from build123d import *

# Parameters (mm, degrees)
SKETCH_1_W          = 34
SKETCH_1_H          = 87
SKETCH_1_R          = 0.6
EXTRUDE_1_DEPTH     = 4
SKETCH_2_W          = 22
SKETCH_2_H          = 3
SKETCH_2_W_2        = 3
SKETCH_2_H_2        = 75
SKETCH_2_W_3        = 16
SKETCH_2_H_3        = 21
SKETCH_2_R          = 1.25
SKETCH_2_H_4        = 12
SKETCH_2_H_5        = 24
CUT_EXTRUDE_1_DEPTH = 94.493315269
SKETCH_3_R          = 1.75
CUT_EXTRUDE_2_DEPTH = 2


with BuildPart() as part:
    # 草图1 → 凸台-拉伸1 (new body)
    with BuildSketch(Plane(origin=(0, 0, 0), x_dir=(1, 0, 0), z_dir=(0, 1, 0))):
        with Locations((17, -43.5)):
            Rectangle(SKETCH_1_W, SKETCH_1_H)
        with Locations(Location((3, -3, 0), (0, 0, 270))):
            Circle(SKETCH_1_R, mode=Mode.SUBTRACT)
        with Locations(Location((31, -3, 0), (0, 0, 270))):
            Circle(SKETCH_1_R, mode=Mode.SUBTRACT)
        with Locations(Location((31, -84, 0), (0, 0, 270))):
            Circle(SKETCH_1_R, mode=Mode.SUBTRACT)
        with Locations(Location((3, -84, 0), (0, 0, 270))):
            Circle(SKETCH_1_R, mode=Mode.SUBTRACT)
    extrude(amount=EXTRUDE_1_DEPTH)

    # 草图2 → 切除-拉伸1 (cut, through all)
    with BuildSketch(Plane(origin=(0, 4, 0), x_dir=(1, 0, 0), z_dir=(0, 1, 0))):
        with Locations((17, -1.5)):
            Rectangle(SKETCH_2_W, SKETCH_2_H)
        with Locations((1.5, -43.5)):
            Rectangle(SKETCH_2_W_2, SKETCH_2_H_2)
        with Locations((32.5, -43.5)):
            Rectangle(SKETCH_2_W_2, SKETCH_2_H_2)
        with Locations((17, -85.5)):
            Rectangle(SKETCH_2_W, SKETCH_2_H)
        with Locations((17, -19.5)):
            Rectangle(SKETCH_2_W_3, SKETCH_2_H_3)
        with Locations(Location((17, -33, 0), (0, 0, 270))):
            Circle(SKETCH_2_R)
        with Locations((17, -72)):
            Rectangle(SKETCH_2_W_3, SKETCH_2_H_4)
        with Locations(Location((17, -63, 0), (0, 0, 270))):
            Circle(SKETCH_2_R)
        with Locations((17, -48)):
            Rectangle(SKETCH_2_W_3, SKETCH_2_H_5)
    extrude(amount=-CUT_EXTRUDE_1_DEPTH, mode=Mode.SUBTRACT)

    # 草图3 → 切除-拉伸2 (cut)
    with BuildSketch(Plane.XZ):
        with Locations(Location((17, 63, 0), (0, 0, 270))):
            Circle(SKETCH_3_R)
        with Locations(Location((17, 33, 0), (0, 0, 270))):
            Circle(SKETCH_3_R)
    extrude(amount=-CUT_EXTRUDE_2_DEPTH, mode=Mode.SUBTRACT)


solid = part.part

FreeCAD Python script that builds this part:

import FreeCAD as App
import Part
import Sketcher


def add_polygon(sketch, points):
    """Adds a closed chain of lines whose ends are joined by coincident constraints."""
    first, n = sketch.GeometryCount, len(points)
    for a, b in zip(points, points[1:] + points[:1]):
        sketch.addGeometry(Part.LineSegment(App.Vector(*a, 0), App.Vector(*b, 0)), False)
    for i in range(n):
        sketch.addConstraint(Sketcher.Constraint("Coincident", first + i, 2, first + (i + 1) % n, 1))

doc = App.newDocument("Part")
body = doc.addObject("PartDesign::Body", "Body")

# Sketch on XZ plane
sketch1 = body.newObject("Sketcher::SketchObject", "Sketch")
sketch1.AttachmentSupport = (doc.getObject("XZ_Plane"), [""])
sketch1.MapMode = "FlatFace"
add_polygon(sketch1, [(0, 0), (0, 87), (34, 87), (34, 0)])  # lines 0-3
sketch1.addGeometry(Part.Circle(App.Vector(3, 84, 0), App.Vector(0, 0, 1), 0.6), False)  # 4
sketch1.addGeometry(Part.Circle(App.Vector(31, 84, 0), App.Vector(0, 0, 1), 0.6), False)  # 5
sketch1.addGeometry(Part.Circle(App.Vector(3, 3, 0), App.Vector(0, 0, 1), 0.6), False)  # 6
sketch1.addGeometry(Part.Circle(App.Vector(31, 3, 0), App.Vector(0, 0, 1), 0.6), False)  # 7
sketch1.addConstraint([
    Sketcher.Constraint("Vertical", 0),
    Sketcher.Constraint("Horizontal", 1),
    Sketcher.Constraint("Vertical", 2),
    Sketcher.Constraint("Horizontal", 3),
    Sketcher.Constraint("Coincident", 3, 2, -1, 1),
    Sketcher.Constraint("Equal", 4, 5),
    Sketcher.Constraint("Equal", 5, 6),
    Sketcher.Constraint("Equal", 6, 7),
    Sketcher.Constraint("Horizontal", 4, 3, 5, 3),
    Sketcher.Constraint("Horizontal", 6, 3, 7, 3),
    Sketcher.Constraint("Vertical", 4, 3, 6, 3),
    Sketcher.Constraint("Vertical", 5, 3, 7, 3),
    Sketcher.Constraint("Diameter", 4, 1.2),
    Sketcher.Constraint("DistanceX", 1, 1, 1, 2, 34.0),
    Sketcher.Constraint("DistanceY", 0, 1, 0, 2, 87.0),
    Sketcher.Constraint("DistanceX", -1, 1, 4, 3, 3.0),
    Sketcher.Constraint("DistanceY", -1, 1, 4, 3, 84.0),
    Sketcher.Constraint("DistanceX", -1, 1, 5, 3, 31.0),
    Sketcher.Constraint("DistanceY", -1, 1, 6, 3, 3.0),
])
pad1 = body.newObject("PartDesign::Pad", "Pad")
pad1.Profile = sketch1
pad1.Length = 4
pad1.Reversed = True

# Sketch on XZ plane
sketch2 = body.newObject("Sketcher::SketchObject", "Sketch001")
sketch2.AttachmentSupport = (doc.getObject("XZ_Plane"), [""])
sketch2.MapMode = "FlatFace"
sketch2.AttachmentOffset = App.Placement(App.Vector(0, 0, -4), App.Rotation())
add_polygon(sketch2, [(6, 0), (6, 3), (28, 3), (28, 0)])  # lines 0-3
add_polygon(sketch2, [(0, 6), (0, 81), (3, 81), (3, 6)])  # lines 4-7
add_polygon(sketch2, [(31, 6), (31, 81), (34, 81), (34, 6)])  # lines 8-11
add_polygon(sketch2, [(6, 84), (6, 87), (28, 87), (28, 84)])  # lines 12-15
add_polygon(sketch2, [(9, 9), (9, 30), (25, 30), (25, 9)])  # lines 16-19
sketch2.addGeometry(Part.Circle(App.Vector(17, 33, 0), App.Vector(0, 0, 1), 1.2), False)  # 20
add_polygon(sketch2, [(9, 66), (9, 78), (25, 78), (25, 66)])  # lines 21-24
sketch2.addGeometry(Part.Circle(App.Vector(17, 63, 0), App.Vector(0, 0, 1), 1.2), False)  # 25
add_polygon(sketch2, [(9, 36), (9, 60), (25, 60), (25, 36)])  # lines 26-29
sketch2.addConstraint([
    Sketcher.Constraint("Vertical", 0),
    Sketcher.Constraint("Horizontal", 1),
    Sketcher.Constraint("Vertical", 2),
    Sketcher.Constraint("Horizontal", 3),
    Sketcher.Constraint("Vertical", 4),
    Sketcher.Constraint("Horizontal", 5),
    Sketcher.Constraint("Vertical", 6),
    Sketcher.Constraint("Horizontal", 7),
    Sketcher.Constraint("Vertical", 8),
    Sketcher.Constraint("Horizontal", 9),
    Sketcher.Constraint("Vertical", 10),
    Sketcher.Constraint("Horizontal", 11),
    Sketcher.Constraint("Vertical", 12),
    Sketcher.Constraint("Horizontal", 13),
    Sketcher.Constraint("Vertical", 14),
    Sketcher.Constraint("Horizontal", 15),
    Sketcher.Constraint("Vertical", 16),
    Sketcher.Constraint("Horizontal", 17),
    Sketcher.Constraint("Vertical", 18),
    Sketcher.Constraint("Horizontal", 19),
    Sketcher.Constraint("Vertical", 21),
    Sketcher.Constraint("Horizontal", 22),
    Sketcher.Constraint("Vertical", 23),
    Sketcher.Constraint("Horizontal", 24),
    Sketcher.Constraint("Vertical", 26),
    Sketcher.Constraint("Horizontal", 27),
    Sketcher.Constraint("Vertical", 28),
    Sketcher.Constraint("Horizontal", 29),
    Sketcher.Constraint("Equal", 20, 25),
    Sketcher.Constraint("PointOnObject", 2, 2, -1),
    Sketcher.Constraint("PointOnObject", 4, 2, -2),
    Sketcher.Constraint("Horizontal", 5, 2, 8, 2),
    Sketcher.Constraint("Horizontal", 7, 2, 10, 2),
    Sketcher.Constraint("Vertical", 20, 3, 25, 3),
    Sketcher.Constraint("Vertical", 3, 2, 12, 2),
    Sketcher.Constraint("Vertical", 2, 2, 13, 2),
    Sketcher.Constraint("Vertical", 19, 2, 21, 2),
    Sketcher.Constraint("Vertical", 18, 2, 22, 2),
    Sketcher.Constraint("Vertical", 24, 2, 26, 2),
    Sketcher.Constraint("Vertical", 23, 2, 27, 2),
    Sketcher.Constraint("Equal", 7, 9),
    Sketcher.Constraint("Equal", 11, 0),
    Sketcher.Constraint("Equal", 2, 12),
    Sketcher.Constraint("Diameter", 20, 2.5),
    Sketcher.Constraint("DistanceX", 1, 1, 1, 2, 22.0),
    Sketcher.Constraint("DistanceX", 5, 1, 5, 2, 3.0),
    Sketcher.Constraint("DistanceX", 17, 1, 17, 2, 16.0),
    Sketcher.Constraint("DistanceY", 4, 1, 4, 2, 75.0),
    Sketcher.Constraint("DistanceY", 16, 1, 16, 2, 21.0),
    Sketcher.Constraint("DistanceY", 21, 1, 21, 2, 12.0),
    Sketcher.Constraint("DistanceY", 26, 1, 26, 2, 24.0),
    Sketcher.Constraint("DistanceX", -1, 1, 20, 3, 17.0),
    Sketcher.Constraint("DistanceY", -1, 1, 20, 3, 33.0),
    Sketcher.Constraint("DistanceY", -1, 1, 25, 3, 63.0),
    Sketcher.Constraint("DistanceX", -1, 1, 0, 2, 6.0),
    Sketcher.Constraint("DistanceY", -1, 1, 4, 2, 81.0),
    Sketcher.Constraint("DistanceX", -1, 1, 8, 2, 31.0),
    Sketcher.Constraint("DistanceY", -1, 1, 12, 2, 87.0),
    Sketcher.Constraint("DistanceX", -1, 1, 16, 2, 9.0),
    Sketcher.Constraint("DistanceY", -1, 1, 16, 2, 30.0),
    Sketcher.Constraint("DistanceY", -1, 1, 21, 2, 78.0),
    Sketcher.Constraint("DistanceY", -1, 1, 26, 2, 60.0),
])
pocket1 = body.newObject("PartDesign::Pocket", "Pocket")
pocket1.Profile = sketch2
pocket1.Type = "ThroughAll"
pocket1.Reversed = True

# Sketch on XZ plane
sketch3 = body.newObject("Sketcher::SketchObject", "Sketch002")
sketch3.AttachmentSupport = (doc.getObject("XZ_Plane"), [""])
sketch3.MapMode = "FlatFace"
sketch3.addGeometry([
    Part.Circle(App.Vector(17, 63, 0), App.Vector(0, 0, 1), 1.8),
    Part.Circle(App.Vector(17, 33, 0), App.Vector(0, 0, 1), 1.8),
], False)
sketch3.addConstraint([
    Sketcher.Constraint("Equal", 0, 1),
    Sketcher.Constraint("Vertical", 0, 3, 1, 3),
    Sketcher.Constraint("Diameter", 0, 3.5),
    Sketcher.Constraint("DistanceX", -1, 1, 0, 3, 17.0),
    Sketcher.Constraint("DistanceY", -1, 1, 0, 3, 63.0),
    Sketcher.Constraint("DistanceY", -1, 1, 1, 3, 33.0),
])
pocket2 = body.newObject("PartDesign::Pocket", "Pocket001")
pocket2.Profile = sketch3
pocket2.Length = 2

doc.recompute()
